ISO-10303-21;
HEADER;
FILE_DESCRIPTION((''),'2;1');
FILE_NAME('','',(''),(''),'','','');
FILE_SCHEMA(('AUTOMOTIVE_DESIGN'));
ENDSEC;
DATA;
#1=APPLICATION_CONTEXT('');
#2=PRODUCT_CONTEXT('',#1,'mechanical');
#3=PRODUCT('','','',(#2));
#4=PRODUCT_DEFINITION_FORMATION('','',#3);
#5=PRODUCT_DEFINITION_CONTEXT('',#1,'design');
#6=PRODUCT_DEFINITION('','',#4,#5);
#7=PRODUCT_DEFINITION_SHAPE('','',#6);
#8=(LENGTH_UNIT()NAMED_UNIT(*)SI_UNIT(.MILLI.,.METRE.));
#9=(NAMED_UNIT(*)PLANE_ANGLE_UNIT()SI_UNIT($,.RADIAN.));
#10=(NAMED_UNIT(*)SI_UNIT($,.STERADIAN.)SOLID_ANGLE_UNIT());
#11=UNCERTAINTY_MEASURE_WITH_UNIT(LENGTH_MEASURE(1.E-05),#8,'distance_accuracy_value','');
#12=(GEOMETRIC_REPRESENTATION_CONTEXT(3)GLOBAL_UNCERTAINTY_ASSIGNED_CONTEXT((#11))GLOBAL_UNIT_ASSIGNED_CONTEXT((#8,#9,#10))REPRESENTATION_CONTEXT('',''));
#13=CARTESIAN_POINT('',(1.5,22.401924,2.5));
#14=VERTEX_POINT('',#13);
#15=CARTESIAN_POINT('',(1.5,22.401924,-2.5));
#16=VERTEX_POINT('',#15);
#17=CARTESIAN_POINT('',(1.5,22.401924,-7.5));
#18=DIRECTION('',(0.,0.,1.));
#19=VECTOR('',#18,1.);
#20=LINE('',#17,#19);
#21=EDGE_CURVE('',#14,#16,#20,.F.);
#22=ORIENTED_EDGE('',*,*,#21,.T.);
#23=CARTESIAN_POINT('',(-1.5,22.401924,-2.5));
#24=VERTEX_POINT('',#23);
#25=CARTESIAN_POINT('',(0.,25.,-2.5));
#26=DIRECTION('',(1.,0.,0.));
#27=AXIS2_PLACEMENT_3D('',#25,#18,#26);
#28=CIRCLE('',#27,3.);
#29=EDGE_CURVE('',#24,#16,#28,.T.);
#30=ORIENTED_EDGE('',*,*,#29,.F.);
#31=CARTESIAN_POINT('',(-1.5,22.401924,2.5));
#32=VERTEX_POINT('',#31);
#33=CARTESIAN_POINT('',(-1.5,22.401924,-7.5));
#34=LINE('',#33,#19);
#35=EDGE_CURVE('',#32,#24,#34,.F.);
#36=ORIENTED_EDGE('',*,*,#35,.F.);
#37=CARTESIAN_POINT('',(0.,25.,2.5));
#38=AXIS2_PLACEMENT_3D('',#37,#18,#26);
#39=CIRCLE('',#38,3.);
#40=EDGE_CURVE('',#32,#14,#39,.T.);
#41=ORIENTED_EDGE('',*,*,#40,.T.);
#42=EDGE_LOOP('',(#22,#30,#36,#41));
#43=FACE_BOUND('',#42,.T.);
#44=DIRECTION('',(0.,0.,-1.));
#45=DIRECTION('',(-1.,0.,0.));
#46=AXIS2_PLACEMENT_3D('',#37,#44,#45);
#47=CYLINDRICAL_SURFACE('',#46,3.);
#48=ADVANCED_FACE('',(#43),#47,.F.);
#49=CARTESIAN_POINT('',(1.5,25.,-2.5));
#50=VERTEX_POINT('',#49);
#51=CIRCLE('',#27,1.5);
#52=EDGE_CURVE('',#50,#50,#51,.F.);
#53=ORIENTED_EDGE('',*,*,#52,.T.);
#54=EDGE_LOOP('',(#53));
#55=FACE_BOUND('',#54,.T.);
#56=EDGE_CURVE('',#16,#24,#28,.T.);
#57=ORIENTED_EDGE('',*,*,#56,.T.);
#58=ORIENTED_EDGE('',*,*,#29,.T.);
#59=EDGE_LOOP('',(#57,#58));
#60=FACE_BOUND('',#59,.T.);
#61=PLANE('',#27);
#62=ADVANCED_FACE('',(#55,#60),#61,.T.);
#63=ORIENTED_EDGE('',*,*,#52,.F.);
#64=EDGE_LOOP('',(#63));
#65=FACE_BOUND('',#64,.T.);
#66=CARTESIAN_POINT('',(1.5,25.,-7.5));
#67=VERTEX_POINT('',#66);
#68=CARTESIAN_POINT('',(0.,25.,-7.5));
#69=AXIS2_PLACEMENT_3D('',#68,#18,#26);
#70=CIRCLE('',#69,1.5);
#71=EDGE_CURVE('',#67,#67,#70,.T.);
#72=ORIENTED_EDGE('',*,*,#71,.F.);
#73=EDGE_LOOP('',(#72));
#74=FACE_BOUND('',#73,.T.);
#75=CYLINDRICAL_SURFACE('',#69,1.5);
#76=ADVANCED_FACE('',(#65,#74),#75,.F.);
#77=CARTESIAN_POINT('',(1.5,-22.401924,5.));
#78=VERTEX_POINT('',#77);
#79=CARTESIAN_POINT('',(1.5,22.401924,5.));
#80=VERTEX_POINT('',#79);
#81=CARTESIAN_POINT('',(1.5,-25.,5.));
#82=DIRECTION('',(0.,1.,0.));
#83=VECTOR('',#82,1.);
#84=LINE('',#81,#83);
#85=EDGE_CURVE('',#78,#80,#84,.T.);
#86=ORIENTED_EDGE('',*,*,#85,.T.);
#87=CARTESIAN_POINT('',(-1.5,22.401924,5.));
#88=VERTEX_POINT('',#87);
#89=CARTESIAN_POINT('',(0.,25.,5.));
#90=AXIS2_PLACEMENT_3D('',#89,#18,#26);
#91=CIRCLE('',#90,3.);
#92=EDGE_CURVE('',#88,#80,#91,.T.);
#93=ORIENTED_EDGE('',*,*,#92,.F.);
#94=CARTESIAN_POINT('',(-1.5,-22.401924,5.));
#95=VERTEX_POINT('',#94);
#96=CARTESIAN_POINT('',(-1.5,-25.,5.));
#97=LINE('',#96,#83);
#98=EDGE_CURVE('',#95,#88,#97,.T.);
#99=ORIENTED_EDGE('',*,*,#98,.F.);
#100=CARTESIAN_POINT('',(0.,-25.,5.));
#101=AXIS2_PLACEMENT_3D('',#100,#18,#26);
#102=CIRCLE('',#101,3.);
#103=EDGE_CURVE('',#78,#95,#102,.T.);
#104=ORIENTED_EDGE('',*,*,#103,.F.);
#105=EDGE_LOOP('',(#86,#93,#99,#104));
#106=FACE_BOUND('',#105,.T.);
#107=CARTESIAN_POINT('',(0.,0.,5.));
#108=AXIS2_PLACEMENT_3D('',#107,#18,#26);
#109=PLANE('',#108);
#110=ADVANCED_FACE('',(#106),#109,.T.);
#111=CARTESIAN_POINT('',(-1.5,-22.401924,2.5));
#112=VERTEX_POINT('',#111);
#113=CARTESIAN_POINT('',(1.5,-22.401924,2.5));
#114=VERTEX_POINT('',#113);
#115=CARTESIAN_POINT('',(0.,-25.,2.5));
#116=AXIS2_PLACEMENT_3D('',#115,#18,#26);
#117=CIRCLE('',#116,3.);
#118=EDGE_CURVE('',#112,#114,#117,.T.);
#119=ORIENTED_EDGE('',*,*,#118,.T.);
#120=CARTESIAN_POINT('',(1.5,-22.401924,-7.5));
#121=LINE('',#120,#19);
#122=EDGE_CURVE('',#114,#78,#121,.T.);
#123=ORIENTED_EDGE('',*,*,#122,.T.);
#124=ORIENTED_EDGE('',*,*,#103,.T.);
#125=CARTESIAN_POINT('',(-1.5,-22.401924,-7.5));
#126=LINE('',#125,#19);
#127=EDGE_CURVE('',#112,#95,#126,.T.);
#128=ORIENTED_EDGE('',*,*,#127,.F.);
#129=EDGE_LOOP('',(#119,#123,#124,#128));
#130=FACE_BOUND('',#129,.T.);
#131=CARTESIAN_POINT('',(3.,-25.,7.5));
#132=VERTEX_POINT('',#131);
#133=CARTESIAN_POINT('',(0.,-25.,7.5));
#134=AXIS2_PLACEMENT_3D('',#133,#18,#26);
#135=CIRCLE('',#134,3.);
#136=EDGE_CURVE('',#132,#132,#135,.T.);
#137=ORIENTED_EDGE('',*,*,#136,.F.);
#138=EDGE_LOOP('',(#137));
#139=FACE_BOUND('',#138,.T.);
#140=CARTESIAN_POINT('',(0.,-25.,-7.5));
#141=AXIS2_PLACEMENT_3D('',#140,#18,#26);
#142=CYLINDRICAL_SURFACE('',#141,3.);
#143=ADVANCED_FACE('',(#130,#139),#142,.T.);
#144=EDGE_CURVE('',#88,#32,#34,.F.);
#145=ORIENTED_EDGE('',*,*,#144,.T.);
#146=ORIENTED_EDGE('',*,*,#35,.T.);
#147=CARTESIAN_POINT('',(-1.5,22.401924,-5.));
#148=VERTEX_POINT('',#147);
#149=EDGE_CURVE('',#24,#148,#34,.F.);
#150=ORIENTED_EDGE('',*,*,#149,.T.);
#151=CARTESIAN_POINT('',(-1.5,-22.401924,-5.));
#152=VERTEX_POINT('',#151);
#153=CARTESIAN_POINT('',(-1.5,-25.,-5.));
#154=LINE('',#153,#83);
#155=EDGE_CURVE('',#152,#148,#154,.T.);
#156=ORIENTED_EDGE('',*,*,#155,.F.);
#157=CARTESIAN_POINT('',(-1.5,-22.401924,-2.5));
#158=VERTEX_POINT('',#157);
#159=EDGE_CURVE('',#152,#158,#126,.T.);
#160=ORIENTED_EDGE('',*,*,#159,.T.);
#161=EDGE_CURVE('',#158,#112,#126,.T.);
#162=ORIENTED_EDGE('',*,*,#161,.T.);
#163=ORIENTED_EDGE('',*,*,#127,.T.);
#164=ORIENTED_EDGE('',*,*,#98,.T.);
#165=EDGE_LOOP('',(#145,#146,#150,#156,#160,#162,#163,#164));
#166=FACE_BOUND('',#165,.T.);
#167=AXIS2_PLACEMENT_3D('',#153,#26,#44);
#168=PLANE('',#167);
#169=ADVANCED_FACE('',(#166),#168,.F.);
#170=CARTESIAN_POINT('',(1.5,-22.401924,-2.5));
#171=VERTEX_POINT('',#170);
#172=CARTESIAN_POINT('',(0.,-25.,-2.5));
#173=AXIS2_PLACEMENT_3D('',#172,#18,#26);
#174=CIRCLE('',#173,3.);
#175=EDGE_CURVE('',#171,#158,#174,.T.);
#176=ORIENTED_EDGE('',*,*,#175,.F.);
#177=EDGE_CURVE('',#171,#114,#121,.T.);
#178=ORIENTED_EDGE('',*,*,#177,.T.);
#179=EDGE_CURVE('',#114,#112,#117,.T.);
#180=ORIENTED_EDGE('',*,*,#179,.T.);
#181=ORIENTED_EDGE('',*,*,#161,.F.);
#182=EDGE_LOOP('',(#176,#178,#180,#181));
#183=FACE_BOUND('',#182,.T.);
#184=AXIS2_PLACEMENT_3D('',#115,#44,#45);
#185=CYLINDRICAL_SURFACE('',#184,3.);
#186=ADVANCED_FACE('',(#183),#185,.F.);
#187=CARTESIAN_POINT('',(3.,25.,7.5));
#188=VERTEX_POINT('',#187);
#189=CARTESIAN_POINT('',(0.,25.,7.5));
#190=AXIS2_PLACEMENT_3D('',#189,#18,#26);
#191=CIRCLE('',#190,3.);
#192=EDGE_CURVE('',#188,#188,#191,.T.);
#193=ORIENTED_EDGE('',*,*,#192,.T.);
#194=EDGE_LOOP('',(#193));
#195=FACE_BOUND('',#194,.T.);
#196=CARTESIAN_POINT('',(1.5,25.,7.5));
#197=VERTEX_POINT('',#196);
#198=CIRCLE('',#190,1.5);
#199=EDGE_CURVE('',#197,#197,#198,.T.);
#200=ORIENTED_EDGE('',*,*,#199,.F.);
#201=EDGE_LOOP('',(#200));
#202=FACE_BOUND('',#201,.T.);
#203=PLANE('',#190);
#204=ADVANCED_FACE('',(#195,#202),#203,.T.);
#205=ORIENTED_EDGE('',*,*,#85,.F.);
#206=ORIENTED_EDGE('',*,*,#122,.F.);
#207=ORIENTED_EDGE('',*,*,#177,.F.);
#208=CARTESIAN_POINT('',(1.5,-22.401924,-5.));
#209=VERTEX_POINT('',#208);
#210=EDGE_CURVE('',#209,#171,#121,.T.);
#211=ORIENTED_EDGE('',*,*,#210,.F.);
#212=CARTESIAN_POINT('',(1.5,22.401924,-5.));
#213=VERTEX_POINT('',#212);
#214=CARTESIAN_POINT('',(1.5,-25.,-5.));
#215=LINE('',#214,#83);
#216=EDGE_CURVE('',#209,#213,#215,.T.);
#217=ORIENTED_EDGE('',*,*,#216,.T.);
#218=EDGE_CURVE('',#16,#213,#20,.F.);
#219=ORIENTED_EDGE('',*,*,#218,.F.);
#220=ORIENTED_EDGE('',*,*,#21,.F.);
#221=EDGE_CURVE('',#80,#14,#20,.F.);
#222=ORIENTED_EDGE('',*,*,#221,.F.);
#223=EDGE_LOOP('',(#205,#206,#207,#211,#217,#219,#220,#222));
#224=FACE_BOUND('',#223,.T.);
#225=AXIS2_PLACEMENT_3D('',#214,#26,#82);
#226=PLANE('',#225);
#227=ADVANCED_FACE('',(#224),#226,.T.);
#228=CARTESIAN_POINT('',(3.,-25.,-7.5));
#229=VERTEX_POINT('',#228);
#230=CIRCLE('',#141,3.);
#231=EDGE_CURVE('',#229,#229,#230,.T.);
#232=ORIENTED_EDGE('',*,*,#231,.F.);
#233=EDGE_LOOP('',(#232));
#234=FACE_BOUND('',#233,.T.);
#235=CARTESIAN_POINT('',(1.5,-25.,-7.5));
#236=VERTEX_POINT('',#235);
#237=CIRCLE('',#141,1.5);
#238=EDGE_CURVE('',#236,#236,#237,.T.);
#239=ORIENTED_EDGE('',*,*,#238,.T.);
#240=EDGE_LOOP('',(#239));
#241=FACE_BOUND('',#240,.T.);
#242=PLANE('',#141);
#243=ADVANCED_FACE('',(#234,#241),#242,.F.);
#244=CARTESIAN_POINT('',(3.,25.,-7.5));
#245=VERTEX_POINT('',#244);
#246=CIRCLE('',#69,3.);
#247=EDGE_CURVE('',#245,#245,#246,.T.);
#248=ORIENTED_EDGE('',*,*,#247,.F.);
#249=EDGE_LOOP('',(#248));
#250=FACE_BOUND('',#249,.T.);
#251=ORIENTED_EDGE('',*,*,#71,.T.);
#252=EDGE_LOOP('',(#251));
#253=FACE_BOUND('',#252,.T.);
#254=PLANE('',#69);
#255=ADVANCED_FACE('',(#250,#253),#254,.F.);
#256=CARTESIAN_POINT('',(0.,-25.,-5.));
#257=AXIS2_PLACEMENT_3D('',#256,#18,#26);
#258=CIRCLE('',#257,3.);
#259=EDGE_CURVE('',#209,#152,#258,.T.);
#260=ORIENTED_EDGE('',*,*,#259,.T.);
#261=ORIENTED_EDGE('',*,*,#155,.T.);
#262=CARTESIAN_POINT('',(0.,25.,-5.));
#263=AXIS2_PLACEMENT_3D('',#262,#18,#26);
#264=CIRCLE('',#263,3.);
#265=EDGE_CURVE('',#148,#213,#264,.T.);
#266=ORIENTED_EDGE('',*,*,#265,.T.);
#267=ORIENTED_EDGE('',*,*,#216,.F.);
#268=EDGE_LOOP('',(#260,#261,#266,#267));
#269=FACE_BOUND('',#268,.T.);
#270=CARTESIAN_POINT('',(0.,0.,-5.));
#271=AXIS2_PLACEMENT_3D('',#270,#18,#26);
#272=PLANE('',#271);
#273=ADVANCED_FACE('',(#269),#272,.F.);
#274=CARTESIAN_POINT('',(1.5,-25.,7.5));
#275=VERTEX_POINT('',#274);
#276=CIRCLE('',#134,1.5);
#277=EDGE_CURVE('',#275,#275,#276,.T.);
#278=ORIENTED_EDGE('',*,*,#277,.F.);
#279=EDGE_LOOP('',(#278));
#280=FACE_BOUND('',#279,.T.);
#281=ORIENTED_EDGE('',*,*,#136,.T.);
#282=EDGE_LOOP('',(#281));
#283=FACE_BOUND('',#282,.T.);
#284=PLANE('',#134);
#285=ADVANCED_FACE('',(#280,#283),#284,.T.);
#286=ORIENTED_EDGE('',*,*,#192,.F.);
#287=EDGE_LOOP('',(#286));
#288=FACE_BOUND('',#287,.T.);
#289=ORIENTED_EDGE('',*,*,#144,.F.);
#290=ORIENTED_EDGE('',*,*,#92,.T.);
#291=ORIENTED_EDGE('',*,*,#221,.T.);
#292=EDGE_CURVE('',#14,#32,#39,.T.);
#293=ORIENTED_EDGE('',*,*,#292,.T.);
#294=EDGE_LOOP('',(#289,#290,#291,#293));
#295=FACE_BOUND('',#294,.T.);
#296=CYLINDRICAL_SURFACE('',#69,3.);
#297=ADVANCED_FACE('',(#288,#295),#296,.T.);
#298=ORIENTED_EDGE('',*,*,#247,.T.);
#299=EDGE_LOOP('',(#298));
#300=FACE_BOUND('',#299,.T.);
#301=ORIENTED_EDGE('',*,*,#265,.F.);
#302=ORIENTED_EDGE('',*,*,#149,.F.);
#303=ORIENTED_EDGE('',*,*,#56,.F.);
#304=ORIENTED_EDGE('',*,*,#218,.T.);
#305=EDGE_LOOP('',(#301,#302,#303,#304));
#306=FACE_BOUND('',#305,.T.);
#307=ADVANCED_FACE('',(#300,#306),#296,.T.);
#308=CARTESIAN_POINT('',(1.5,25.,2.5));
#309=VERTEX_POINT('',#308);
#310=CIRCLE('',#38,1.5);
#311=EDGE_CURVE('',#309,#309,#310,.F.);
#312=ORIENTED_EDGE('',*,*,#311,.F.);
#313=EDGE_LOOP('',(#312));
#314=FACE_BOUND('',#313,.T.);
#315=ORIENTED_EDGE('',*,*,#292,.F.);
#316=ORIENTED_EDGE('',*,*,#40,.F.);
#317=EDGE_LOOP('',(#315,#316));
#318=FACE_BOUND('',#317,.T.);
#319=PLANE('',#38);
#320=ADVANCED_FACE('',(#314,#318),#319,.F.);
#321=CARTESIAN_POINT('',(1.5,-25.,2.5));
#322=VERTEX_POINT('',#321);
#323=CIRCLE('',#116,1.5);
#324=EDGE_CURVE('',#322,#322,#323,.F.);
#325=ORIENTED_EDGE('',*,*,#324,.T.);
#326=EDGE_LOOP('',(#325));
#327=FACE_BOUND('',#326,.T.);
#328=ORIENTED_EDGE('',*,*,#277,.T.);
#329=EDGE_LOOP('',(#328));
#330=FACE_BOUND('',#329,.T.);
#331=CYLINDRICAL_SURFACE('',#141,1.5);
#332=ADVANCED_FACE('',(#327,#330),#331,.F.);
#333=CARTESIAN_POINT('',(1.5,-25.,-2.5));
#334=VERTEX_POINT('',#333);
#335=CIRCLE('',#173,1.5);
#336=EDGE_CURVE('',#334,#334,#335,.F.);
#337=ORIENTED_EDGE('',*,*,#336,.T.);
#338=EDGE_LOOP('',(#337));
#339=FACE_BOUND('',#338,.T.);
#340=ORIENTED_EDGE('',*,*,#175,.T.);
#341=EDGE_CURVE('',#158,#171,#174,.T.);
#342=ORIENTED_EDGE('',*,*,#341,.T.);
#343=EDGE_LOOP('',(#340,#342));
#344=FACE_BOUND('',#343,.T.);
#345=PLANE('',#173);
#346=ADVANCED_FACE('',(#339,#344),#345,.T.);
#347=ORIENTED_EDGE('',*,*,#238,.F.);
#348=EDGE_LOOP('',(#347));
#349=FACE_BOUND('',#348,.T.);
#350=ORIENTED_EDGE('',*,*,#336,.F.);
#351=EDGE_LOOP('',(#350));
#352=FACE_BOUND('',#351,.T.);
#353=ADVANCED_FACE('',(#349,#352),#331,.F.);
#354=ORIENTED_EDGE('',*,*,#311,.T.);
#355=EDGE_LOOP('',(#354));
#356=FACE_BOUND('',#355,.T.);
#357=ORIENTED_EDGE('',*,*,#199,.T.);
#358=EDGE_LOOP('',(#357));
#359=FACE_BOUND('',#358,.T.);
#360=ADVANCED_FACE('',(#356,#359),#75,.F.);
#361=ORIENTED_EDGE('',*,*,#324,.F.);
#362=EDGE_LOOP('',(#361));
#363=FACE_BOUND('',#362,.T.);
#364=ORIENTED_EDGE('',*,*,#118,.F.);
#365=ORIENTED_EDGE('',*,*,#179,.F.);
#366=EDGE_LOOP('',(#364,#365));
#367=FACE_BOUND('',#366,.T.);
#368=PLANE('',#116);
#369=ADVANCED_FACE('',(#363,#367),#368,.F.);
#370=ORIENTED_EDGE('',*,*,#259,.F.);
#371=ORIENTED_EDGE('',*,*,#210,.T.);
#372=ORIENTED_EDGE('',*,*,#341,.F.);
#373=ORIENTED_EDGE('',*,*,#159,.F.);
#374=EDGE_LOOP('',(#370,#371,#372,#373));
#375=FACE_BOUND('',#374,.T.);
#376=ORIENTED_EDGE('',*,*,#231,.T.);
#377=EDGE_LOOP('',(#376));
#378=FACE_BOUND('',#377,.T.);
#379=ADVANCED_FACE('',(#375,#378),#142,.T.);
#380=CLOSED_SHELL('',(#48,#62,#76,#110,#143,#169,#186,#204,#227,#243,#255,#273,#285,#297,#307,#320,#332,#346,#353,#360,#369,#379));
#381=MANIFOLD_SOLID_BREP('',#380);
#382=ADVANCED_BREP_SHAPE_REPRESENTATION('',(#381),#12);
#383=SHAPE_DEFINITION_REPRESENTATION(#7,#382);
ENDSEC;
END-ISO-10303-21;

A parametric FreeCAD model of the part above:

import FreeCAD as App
import Part
import Sketcher

V = App.Vector
Q = App.Units.Quantity


def add_polygon(sketch, points):
    """Adds a closed chain of lines whose ends are joined by coincident constraints."""
    first, n = sketch.GeometryCount, len(points)
    for a, b in zip(points, points[1:] + points[:1]):
        sketch.addGeometry(Part.LineSegment(App.Vector(*a, 0), App.Vector(*b, 0)), False)
    for i in range(n):
        sketch.addConstraint(Sketcher.Constraint("Coincident", first + i, 2, first + (i + 1) % n, 1))

doc = App.newDocument("Part")
params = doc.addObject("Spreadsheet::Sheet", "Params")
for row, (alias, value) in enumerate([
    ("sketch1_width", "3 mm"),
    ("sketch1_height", "50 mm"),
    ("pad1_length", "5 mm"),
    ("pad1_length2", "5 mm"),
    ("sketch2_diameter", "6 mm"),
    ("sketch2_diameter2", "3 mm"),
    ("pad2_length", "7.5 mm"),
    ("pad2_length2", "7.5 mm"),
    ("sketch3_diameter", "6 mm"),
    ("pocket1_length", "2.5 mm"),
    ("pocket1_length2", "2.5 mm"),
    ("sketch4_diameter", "3 mm"),
], start=1):
    params.set(f"A{row}", alias)
    params.set(f"B{row}", "=" + value)
    params.setAlias(f"B{row}", alias)

body = doc.addObject("PartDesign::Body", "Body")

# Sketch on XY plane
sketch1 = body.newObject("Sketcher::SketchObject", "Sketch")
sketch1.AttachmentSupport = (doc.getObject("XY_Plane"), [""])
sketch1.MapMode = "FlatFace"
add_polygon(sketch1, [(-1.5, 25), (-1.5, -25), (1.5, -25), (1.5, 25)])  # lines 0-3
sketch1.addConstraint(Sketcher.Constraint("Vertical", 0))
sketch1.addConstraint(Sketcher.Constraint("Horizontal", 1))
sketch1.addConstraint(Sketcher.Constraint("Vertical", 2))
sketch1.addConstraint(Sketcher.Constraint("Horizontal", 3))
sketch1.addConstraint(Sketcher.Constraint("Symmetric", 0, 2, 2, 2, -1, 1))
sketch1.addConstraint(Sketcher.Constraint("DistanceX", 1, 1, 1, 2, Q("3 mm")))
sketch1.addConstraint(Sketcher.Constraint("DistanceY", 0, 2, 0, 1, Q("50 mm")))
sketch1.setExpression("Constraints[9]", "Params.sketch1_width")
sketch1.setExpression("Constraints[10]", "Params.sketch1_height")
pad1 = body.newObject("PartDesign::Pad", "Pad")
pad1.Profile = sketch1
pad1.Type = "TwoLengths"
pad1.setExpression("Length", "Params.pad1_length")
pad1.setExpression("Length2", "Params.pad1_length2")

# Sketch on XY plane
sketch2 = body.newObject("Sketcher::SketchObject", "Sketch001")
sketch2.AttachmentSupport = (doc.getObject("XY_Plane"), [""])
sketch2.MapMode = "FlatFace"
sketch2.addGeometry(Part.Circle(V(0, 25, 0), V(0, 0, 1), 3), False)
sketch2.addGeometry(Part.Circle(V(0, 25, 0), V(0, 0, 1), 1.5), False)
sketch2.addGeometry(Part.Circle(V(0, -25, 0), V(0, 0, 1), 3), False)
sketch2.addGeometry(Part.Circle(V(0, -25, 0), V(0, 0, 1), 1.5), False)
sketch2.addConstraint(Sketcher.Constraint("Coincident", 1, 3, 0, 3))
sketch2.addConstraint(Sketcher.Constraint("Coincident", 3, 3, 2, 3))
sketch2.addConstraint(Sketcher.Constraint("Equal", 0, 2))
sketch2.addConstraint(Sketcher.Constraint("Equal", 1, 3))
sketch2.addConstraint(Sketcher.Constraint("Symmetric", 0, 3, 2, 3, -1, 1))
sketch2.addConstraint(Sketcher.Constraint("PointOnObject", 0, 3, -2))
sketch2.addConstraint(Sketcher.Constraint("Diameter", 0, Q("6 mm")))
sketch2.addConstraint(Sketcher.Constraint("Diameter", 1, Q("3 mm")))
sketch2.addConstraint(Sketcher.Constraint("DistanceY", -1, 1, 0, 3, Q("25 mm")))
sketch2.setExpression("Constraints[6]", "Params.sketch2_diameter")
sketch2.setExpression("Constraints[7]", "Params.sketch2_diameter2")
pad2 = body.newObject("PartDesign::Pad", "Pad001")
pad2.Profile = sketch2
pad2.Type = "TwoLengths"
pad2.setExpression("Length", "Params.pad2_length")
pad2.setExpression("Length2", "Params.pad2_length2")

# Sketch on XY plane
sketch3 = body.newObject("Sketcher::SketchObject", "Sketch002")
sketch3.AttachmentSupport = (doc.getObject("XY_Plane"), [""])
sketch3.MapMode = "FlatFace"
sketch3.addGeometry(Part.Circle(V(0, 25, 0), V(0, 0, 1), 3), False)
sketch3.addGeometry(Part.Circle(V(0, -25, 0), V(0, 0, 1), 3), False)
sketch3.addConstraint(Sketcher.Constraint("Equal", 0, 1))
sketch3.addConstraint(Sketcher.Constraint("Symmetric", 0, 3, 1, 3, -1, 1))
sketch3.addConstraint(Sketcher.Constraint("PointOnObject", 0, 3, -2))
sketch3.addConstraint(Sketcher.Constraint("Diameter", 0, Q("6 mm")))
sketch3.addConstraint(Sketcher.Constraint("DistanceY", -1, 1, 0, 3, Q("25 mm")))
sketch3.setExpression("Constraints[3]", "Params.sketch3_diameter")
pocket1 = body.newObject("PartDesign::Pocket", "Pocket")
pocket1.Profile = sketch3
pocket1.Type = "TwoLengths"
pocket1.setExpression("Length", "Params.pocket1_length")
pocket1.setExpression("Length2", "Params.pocket1_length2")
pocket1.Reversed = True

# Sketch on XY plane
sketch4 = body.newObject("Sketcher::SketchObject", "Sketch003")
sketch4.AttachmentSupport = (doc.getObject("XY_Plane"), [""])
sketch4.MapMode = "FlatFace"
sketch4.addGeometry(Part.Circle(V(0, 25, 0), V(0, 0, 1), 1.5), False)
sketch4.addGeometry(Part.Circle(V(0, -25, 0), V(0, 0, 1), 1.5), False)
sketch4.addConstraint(Sketcher.Constraint("Equal", 0, 1))
sketch4.addConstraint(Sketcher.Constraint("Symmetric", 0, 3, 1, 3, -1, 1))
sketch4.addConstraint(Sketcher.Constraint("PointOnObject", 0, 3, -2))
sketch4.addConstraint(Sketcher.Constraint("Diameter", 0, Q("3 mm")))
sketch4.addConstraint(Sketcher.Constraint("DistanceY", -1, 1, 0, 3, Q("25 mm")))
sketch4.setExpression("Constraints[3]", "Params.sketch4_diameter")
pocket2 = body.newObject("PartDesign::Pocket", "Pocket001")
pocket2.Profile = sketch4
pocket2.Type = "ThroughAll"
pocket2.Midplane = True

doc.recompute()
